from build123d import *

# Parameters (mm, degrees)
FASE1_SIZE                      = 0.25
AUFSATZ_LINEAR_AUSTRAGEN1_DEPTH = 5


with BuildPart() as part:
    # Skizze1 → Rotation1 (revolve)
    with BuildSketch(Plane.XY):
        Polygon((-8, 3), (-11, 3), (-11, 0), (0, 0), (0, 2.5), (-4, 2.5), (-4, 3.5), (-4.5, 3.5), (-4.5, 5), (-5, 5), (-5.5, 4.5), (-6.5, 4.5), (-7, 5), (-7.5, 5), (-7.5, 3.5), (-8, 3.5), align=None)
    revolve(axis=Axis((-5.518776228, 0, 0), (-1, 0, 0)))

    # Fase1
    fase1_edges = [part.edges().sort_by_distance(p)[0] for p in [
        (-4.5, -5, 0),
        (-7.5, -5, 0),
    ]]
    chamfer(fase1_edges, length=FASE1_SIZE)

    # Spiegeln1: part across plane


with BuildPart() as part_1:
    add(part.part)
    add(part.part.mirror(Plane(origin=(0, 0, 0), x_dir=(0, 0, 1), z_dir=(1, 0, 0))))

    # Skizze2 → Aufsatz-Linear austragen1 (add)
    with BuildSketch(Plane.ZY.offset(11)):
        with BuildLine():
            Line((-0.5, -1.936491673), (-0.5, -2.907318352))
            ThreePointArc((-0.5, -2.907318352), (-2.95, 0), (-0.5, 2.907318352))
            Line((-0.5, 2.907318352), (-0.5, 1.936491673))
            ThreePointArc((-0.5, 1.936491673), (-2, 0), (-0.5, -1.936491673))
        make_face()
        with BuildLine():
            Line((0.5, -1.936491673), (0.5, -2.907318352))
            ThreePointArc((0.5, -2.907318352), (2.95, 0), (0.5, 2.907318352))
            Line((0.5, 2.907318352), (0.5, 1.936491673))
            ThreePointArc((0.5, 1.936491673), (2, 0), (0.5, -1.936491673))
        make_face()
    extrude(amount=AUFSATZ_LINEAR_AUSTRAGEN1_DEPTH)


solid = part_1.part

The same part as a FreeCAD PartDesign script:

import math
import FreeCAD as App
import Part
import Sketcher


def edges_at(feature, points):
    """Names of the edges that pass closest to the given points."""
    edges = feature.Shape.Edges
    near = lambda p: min(range(len(edges)), key=lambda i: edges[i].distToShape(Part.Vertex(*p))[0])
    return sorted({f"Edge{near(p) + 1}" for p in points})


def add_polygon(sketch, points):
    """Adds a closed chain of lines whose ends are joined by coincident constraints."""
    first, n = sketch.GeometryCount, len(points)
    for a, b in zip(points, points[1:] + points[:1]):
        sketch.addGeometry(Part.LineSegment(App.Vector(*a, 0), App.Vector(*b, 0)), False)
    for i in range(n):
        sketch.addConstraint(Sketcher.Constraint("Coincident", first + i, 2, first + (i + 1) % n, 1))

doc = App.newDocument("Part")
body = doc.addObject("PartDesign::Body", "Body")

sketch1 = body.newObject("Sketcher::SketchObject", "Sketch")
sketch1.AttachmentSupport = (doc.getObject("XY_Plane"), [""])
sketch1.MapMode = "FlatFace"
add_polygon(sketch1, [(-8, 3), (-11, 3), (-11, 0), (0, 0), (0, 2.5), (-4, 2.5), (-4, 3.5), (-4.5, 3.5), (-4.5, 5), (-5, 5), (-5.5, 4.5), (-6.5, 4.5), (-7, 5), (-7.5, 5), (-7.5, 3.5), (-8, 3.5)])
sketch1.addConstraint([
    Sketcher.Constraint("Horizontal", 0),
    Sketcher.Constraint("Vertical", 1),
    Sketcher.Constraint("Horizontal", 2),
    Sketcher.Constraint("Vertical", 3),
    Sketcher.Constraint("Horizontal", 4),
    Sketcher.Constraint("Vertical", 5),
    Sketcher.Constraint("Horizontal", 6),
    Sketcher.Constraint("Vertical", 7),
    Sketcher.Constraint("Horizontal", 8),
    Sketcher.Constraint("Horizontal", 10),
    Sketcher.Constraint("Horizontal", 12),
    Sketcher.Constraint("Vertical", 13),
    Sketcher.Constraint("Horizontal", 14),
    Sketcher.Constraint("Vertical", 15),
    Sketcher.Constraint("Coincident", 2, 2, -1, 1),
    Sketcher.Constraint("Perpendicular", 9, 11),
    Sketcher.Constraint("Horizontal", 8, 2, 11, 2),
    Sketcher.Constraint("Horizontal", 6, 2, 13, 2),
    Sketcher.Constraint("Equal", 6, 8),
    Sketcher.Constraint("Equal", 8, 12),
    Sketcher.Constraint("Equal", 12, 14),
    Sketcher.Constraint("Equal", 0, 1),
    Sketcher.Constraint("Equal", 10, 5),
    Sketcher.Constraint("Equal", 14, 15),
    Sketcher.Constraint("Equal", 9, 11),
    Sketcher.Constraint("DistanceX", 0, 2, 0, 1, 3.0),
    Sketcher.Constraint("DistanceX", 2, 1, 2, 2, 11.0),
    Sketcher.Constraint("DistanceX", 4, 2, 4, 1, 4.0),
    Sketcher.Constraint("DistanceX", 10, 2, 10, 1, 1.0),
    Sketcher.Constraint("DistanceX", 6, 2, 6, 1, 0.5),
    Sketcher.Constraint("DistanceY", 7, 1, 7, 2, 1.5),
])
revolution = body.newObject("PartDesign::Revolution", "Revolution")
revolution.Profile = sketch1
revolution.ReferenceAxis = (sketch1, ["H_Axis"])
revolution.Angle = 360
doc.recompute()

chamfer = body.newObject("PartDesign::Chamfer", "Chamfer")
chamfer.Base = (revolution, edges_at(revolution, [(-4.5, -5, 0), (-7.5, -5, 0)]))
chamfer.Size = 0.25
body2 = doc.addObject("PartDesign::Body", "Body001")
doc.recompute()

body2.BaseFeature = body
doc.recompute()

mirroring = doc.addObject("Part::Mirroring", "Mirroring")
mirroring.Source = body
mirroring.Base = App.Vector(0, 0, 0)
mirroring.Normal = App.Vector(1, 0, 0)
body3 = doc.addObject("PartDesign::Body", "Body002")
body3.BaseFeature = mirroring
boolean = body2.newObject("PartDesign::Boolean", "Boolean")
boolean.Type = "Fuse"
boolean.addObjects([body3])
doc.recompute()

sketch2 = body2.newObject("Sketcher::SketchObject", "Sketch001")
sketch2.AttachmentSupport = (doc.getObject("YZ_Plane001"), [""])
sketch2.MapMode = "FlatFace"
sketch2.AttachmentOffset = App.Placement(App.Vector(0, 0, -11), App.Rotation())
sketch2.addGeometry([
    Part.LineSegment(App.Vector(-2.9, -0.5, 0), App.Vector(-1.9, -0.5, 0)),
    Part.ArcOfCircle(Part.Circle(App.Vector(0, 0, 0), App.Vector(0, 0, 1), 2), math.radians(-166), math.radians(-14)),
    Part.LineSegment(App.Vector(1.9, -0.5, 0), App.Vector(2.9, -0.5, 0)),
    Part.ArcOfCircle(Part.Circle(App.Vector(0, 0, 0), App.Vector(0, 0, 1), 3), math.radians(-170), math.radians(-10)),
    Part.LineSegment(App.Vector(-1.9, 0.5, 0), App.Vector(-2.9, 0.5, 0)),
    Part.ArcOfCircle(Part.Circle(App.Vector(0, 0, 0), App.Vector(0, 0, 1), 3), math.radians(10), math.radians(170)),
    Part.LineSegment(App.Vector(2.9, 0.5, 0), App.Vector(1.9, 0.5, 0)),
    Part.ArcOfCircle(Part.Circle(App.Vector(0, 0, 0), App.Vector(0, 0, 1), 2), math.radians(14), math.radians(166)),
], False)
sketch2.addConstraint([
    Sketcher.Constraint("Coincident", 0, 2, 1, 1),
    Sketcher.Constraint("Coincident", 1, 2, 2, 1),
    Sketcher.Constraint("Coincident", 2, 2, 3, 2),
    Sketcher.Constraint("Coincident", 3, 1, 0, 1),
    Sketcher.Constraint("Coincident", 4, 2, 5, 2),
    Sketcher.Constraint("Coincident", 5, 1, 6, 1),
    Sketcher.Constraint("Coincident", 6, 2, 7, 1),
    Sketcher.Constraint("Coincident", 7, 2, 4, 1),
    Sketcher.Constraint("Horizontal", 0),
    Sketcher.Constraint("Horizontal", 2),
    Sketcher.Constraint("Horizontal", 4),
    Sketcher.Constraint("Horizontal", 6),
    Sketcher.Constraint("Coincident", 1, 3, -1, 1),
    Sketcher.Constraint("Coincident", 3, 3, -1, 1),
    Sketcher.Constraint("Coincident", 5, 3, -1, 1),
    Sketcher.Constraint("Coincident", 7, 3, -1, 1),
    Sketcher.Constraint("Equal", 3, 5),
    Sketcher.Constraint("Equal", 1, 7),
    Sketcher.Constraint("Horizontal", 0, 2, 1, 2),
    Sketcher.Constraint("Horizontal", 4, 2, 5, 1),
    Sketcher.Constraint("Vertical", 3, 1, 4, 2),
    Sketcher.Constraint("Radius", 1, 2.0),
    Sketcher.Constraint("Radius", 3, 2.95),
    Sketcher.Constraint("DistanceY", 3, 1, 4, 2, 1.0),
])
pad1 = body2.newObject("PartDesign::Pad", "Pad")
pad1.Profile = sketch2
pad1.Length = 5
pad1.Reversed = True
mirroring.Visibility = False

doc.recompute()
